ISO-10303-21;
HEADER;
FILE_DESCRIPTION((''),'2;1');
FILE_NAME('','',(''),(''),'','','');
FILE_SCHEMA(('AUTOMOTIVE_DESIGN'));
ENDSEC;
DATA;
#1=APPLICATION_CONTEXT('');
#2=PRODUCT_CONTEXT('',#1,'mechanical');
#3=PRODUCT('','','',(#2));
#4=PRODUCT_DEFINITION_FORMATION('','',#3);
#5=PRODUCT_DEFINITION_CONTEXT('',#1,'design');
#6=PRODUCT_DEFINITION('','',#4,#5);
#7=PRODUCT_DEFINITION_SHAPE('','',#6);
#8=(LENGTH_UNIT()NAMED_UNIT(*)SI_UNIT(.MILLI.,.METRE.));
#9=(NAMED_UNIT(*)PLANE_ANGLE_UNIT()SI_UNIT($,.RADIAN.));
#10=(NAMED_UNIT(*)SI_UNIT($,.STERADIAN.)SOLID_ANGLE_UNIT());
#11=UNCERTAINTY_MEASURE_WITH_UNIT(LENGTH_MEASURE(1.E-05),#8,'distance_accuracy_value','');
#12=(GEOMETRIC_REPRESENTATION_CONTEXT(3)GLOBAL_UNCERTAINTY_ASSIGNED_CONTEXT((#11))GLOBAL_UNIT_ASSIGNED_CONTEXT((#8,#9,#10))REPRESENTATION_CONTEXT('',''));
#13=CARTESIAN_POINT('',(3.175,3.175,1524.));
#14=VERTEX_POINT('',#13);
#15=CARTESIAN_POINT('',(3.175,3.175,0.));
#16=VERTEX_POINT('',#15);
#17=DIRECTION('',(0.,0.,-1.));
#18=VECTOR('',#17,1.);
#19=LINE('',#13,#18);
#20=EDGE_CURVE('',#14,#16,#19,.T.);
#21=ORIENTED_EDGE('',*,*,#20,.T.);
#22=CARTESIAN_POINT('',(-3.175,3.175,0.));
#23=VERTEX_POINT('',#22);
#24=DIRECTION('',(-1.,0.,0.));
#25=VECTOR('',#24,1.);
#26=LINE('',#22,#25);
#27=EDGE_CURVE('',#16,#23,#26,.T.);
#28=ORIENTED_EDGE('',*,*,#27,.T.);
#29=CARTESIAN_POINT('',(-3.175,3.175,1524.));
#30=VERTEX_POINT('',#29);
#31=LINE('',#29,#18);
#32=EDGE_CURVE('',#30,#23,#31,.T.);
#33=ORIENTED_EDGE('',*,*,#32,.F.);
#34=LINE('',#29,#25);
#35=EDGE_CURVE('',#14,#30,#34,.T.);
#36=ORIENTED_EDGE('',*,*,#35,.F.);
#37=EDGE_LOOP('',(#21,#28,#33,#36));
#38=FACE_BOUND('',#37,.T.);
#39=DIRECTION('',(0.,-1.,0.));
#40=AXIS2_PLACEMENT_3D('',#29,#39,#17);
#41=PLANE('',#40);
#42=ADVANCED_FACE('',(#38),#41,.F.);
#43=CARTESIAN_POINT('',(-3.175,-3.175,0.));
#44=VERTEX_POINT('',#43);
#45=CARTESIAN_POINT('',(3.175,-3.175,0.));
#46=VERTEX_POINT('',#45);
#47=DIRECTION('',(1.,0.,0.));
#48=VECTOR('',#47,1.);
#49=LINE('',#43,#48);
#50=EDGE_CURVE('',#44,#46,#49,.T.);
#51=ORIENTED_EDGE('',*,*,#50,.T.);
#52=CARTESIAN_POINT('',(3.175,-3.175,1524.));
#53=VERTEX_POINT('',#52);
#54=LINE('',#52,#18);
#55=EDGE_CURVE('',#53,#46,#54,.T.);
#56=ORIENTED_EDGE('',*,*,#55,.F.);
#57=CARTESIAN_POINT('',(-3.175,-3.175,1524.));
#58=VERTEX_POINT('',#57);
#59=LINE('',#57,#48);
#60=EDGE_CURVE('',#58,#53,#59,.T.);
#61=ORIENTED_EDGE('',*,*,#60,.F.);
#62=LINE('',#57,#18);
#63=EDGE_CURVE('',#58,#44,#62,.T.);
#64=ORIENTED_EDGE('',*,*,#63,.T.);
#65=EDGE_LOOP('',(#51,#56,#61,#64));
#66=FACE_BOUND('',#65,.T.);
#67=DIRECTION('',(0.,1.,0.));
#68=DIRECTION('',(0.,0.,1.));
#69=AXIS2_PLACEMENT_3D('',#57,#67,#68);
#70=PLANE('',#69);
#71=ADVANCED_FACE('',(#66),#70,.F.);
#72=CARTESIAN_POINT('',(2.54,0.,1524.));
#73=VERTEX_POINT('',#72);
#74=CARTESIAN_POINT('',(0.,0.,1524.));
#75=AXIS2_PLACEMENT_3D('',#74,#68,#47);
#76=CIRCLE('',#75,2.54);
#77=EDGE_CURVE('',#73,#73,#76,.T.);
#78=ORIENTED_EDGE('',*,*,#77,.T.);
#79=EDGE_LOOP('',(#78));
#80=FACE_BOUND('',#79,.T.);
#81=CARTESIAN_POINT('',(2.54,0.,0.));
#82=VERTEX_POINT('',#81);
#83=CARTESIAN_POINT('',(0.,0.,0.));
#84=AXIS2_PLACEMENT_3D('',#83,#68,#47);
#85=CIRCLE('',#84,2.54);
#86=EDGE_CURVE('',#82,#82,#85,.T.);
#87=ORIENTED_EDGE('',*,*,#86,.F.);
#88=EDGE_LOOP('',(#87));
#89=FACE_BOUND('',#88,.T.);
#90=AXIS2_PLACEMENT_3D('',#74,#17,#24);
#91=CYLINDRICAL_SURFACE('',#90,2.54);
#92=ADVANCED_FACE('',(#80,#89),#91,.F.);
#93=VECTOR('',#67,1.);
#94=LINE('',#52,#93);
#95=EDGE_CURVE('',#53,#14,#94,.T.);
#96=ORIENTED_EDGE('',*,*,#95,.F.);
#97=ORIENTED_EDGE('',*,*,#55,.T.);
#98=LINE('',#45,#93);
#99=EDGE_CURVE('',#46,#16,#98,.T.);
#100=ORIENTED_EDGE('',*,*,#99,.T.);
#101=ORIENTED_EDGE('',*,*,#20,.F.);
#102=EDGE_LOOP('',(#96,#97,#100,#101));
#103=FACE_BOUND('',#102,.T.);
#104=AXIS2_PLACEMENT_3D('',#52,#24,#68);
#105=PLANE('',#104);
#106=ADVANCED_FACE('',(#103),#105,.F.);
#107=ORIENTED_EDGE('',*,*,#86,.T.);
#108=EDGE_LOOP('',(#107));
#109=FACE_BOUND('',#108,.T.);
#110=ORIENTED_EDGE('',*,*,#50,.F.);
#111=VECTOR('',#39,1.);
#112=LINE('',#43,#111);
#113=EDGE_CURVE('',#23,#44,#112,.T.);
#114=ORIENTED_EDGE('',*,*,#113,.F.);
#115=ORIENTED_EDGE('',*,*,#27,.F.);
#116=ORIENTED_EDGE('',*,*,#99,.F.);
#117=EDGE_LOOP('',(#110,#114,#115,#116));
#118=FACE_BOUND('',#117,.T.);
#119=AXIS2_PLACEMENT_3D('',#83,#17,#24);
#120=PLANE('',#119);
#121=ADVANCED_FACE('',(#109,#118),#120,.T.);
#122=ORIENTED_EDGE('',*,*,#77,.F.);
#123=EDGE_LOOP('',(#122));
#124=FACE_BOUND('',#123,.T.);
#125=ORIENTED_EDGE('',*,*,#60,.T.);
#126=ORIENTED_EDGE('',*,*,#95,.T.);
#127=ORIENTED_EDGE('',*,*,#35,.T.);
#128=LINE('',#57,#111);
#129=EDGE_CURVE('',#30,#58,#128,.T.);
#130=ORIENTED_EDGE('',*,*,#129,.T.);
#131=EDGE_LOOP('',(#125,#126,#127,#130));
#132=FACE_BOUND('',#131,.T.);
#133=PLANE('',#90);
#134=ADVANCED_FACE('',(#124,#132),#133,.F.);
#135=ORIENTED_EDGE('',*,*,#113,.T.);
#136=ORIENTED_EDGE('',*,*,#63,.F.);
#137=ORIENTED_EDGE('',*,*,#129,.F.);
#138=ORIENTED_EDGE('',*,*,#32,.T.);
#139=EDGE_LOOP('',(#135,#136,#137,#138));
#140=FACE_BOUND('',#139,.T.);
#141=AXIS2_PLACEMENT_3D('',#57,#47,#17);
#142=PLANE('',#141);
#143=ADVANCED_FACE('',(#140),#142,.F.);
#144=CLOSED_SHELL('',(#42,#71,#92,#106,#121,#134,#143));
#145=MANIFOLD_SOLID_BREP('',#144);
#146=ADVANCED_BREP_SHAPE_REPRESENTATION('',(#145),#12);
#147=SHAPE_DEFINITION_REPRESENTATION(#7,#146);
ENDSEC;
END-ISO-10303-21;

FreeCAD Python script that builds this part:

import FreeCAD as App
import Part
import Sketcher

V = App.Vector
Q = App.Units.Quantity

doc = App.newDocument("Part")
params = doc.addObject("Spreadsheet::Sheet", "Params")
for row, (alias, value) in enumerate([
    ("sketch1_diameter", "0.2 in"),
    ("sketch1_width", "0.25 in"),
    ("pad1_length", "60 in"),
], start=1):
    params.set(f"A{row}", alias)
    params.set(f"B{row}", "=" + value)
    params.setAlias(f"B{row}", alias)

body = doc.addObject("PartDesign::Body", "Body")

sketch1 = body.newObject("Sketcher::SketchObject", "Sketch")
sketch1.AttachmentSupport = (doc.getObject("XY_Plane"), [""])
sketch1.MapMode = "FlatFace"
sketch1.addGeometry([
    Part.LineSegment(V(-3.175, 3.175, 0), V(-3.175, -3.175, 0)),
    Part.LineSegment(V(-3.175, -3.175, 0), V(3.175, -3.175, 0)),
    Part.LineSegment(V(3.175, -3.175, 0), V(3.175, 3.175, 0)),
    Part.LineSegment(V(3.175, 3.175, 0), V(-3.175, 3.175, 0)),
    Part.Circle(V(0, 0, 0), V(0, 0, 1), 2.54),
], False)
sketch1.addConstraint([
    Sketcher.Constraint("Coincident", 0, 2, 1, 1),
    Sketcher.Constraint("Coincident", 1, 2, 2, 1),
    Sketcher.Constraint("Coincident", 2, 2, 3, 1),
    Sketcher.Constraint("Coincident", 3, 2, 0, 1),
    Sketcher.Constraint("Vertical", 0),
    Sketcher.Constraint("Horizontal", 1),
    Sketcher.Constraint("Vertical", 2),
    Sketcher.Constraint("Horizontal", 3),
    Sketcher.Constraint("Coincident", 4, 3, -1, 1),
    Sketcher.Constraint("Symmetric", 0, 2, 2, 2, -1, 1),
    Sketcher.Constraint("Equal", 3, 0),
    Sketcher.Constraint("Diameter", 4, Q("0.2 in")),
    Sketcher.Constraint("DistanceX", 1, 1, 1, 2, Q("0.25 in")),
])
sketch1.setExpression("Constraints[11]", "Params.sketch1_diameter")
sketch1.setExpression("Constraints[12]", "Params.sketch1_width")
pad1 = body.newObject("PartDesign::Pad", "Pad")
pad1.Profile = sketch1
pad1.setExpression("Length", "Params.pad1_length")

doc.recompute()
